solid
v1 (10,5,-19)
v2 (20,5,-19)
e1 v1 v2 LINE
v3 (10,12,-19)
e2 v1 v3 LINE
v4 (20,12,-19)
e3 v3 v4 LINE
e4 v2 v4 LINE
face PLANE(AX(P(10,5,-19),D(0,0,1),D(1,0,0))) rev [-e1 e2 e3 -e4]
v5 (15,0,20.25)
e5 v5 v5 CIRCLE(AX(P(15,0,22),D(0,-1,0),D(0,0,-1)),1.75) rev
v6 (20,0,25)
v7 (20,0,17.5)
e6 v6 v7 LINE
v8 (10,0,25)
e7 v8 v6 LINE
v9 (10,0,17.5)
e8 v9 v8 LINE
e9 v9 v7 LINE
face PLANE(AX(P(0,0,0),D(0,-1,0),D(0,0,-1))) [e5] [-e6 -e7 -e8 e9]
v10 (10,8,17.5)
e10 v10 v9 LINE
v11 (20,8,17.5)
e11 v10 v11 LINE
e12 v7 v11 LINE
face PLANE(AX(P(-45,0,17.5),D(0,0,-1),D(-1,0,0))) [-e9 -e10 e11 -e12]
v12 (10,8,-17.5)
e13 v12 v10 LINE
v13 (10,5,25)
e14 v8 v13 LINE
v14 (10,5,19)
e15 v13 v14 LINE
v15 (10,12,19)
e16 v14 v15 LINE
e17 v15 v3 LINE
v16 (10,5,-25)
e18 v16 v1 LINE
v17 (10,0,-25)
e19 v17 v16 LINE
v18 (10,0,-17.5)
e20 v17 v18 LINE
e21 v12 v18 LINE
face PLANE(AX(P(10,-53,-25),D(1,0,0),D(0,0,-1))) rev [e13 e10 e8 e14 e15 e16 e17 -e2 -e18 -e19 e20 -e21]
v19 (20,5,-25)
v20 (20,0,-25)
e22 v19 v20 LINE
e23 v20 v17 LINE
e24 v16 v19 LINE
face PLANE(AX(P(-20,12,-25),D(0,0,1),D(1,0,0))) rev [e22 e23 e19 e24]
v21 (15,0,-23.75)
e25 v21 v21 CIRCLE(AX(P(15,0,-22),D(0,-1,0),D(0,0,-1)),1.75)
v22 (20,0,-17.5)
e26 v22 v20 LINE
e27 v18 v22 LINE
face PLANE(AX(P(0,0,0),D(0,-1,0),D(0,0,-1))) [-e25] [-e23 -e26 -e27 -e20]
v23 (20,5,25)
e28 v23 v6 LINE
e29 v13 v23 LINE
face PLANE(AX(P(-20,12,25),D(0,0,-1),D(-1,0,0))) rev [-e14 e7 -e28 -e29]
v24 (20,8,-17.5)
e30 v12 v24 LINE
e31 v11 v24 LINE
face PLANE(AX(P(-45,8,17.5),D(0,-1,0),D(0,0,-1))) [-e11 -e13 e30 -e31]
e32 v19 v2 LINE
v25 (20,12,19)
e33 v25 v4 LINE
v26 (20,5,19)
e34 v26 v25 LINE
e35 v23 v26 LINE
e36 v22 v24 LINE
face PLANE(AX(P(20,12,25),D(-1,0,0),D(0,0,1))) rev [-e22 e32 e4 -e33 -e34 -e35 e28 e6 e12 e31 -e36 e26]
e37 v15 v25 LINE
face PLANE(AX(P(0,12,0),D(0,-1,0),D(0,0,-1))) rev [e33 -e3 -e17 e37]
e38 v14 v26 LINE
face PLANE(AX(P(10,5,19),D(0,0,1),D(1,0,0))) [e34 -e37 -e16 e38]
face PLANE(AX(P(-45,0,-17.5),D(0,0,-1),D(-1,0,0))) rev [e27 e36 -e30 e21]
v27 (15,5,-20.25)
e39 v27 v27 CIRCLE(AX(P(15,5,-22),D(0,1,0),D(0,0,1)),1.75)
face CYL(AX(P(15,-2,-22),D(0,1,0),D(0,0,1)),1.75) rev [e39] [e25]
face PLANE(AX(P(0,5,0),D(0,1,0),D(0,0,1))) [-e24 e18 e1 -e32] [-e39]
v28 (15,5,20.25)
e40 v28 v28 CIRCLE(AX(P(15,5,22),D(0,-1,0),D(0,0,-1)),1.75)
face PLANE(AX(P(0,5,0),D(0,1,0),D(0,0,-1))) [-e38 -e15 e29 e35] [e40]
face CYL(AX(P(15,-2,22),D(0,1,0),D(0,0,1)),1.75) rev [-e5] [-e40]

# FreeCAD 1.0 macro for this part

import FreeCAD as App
import Part
import Sketcher

V = App.Vector
Q = App.Units.Quantity

doc = App.newDocument("Part")
body = doc.addObject("PartDesign::Body", "Body")

# Sketch on XZ plane
sketch1 = doc.addObject("Sketcher::SketchObject", "Sketch")
body.addObject(sketch1)
sketch1.AttachmentSupport = (doc.XZ_Plane, [""])
sketch1.MapMode = "FlatFace"
sketch1.addGeometry([
    Part.LineSegment(V(-20, -25, 0), V(-20, 25, 0)),
    Part.LineSegment(V(-20, 25, 0), V(20, 25, 0)),
    Part.LineSegment(V(20, 25, 0), V(20, -25, 0)),
    Part.LineSegment(V(20, -25, 0), V(-20, -25, 0)),
], False)
sketch1.addConstraint([
    Sketcher.Constraint("Coincident", 0, 2, 1, 1),
    Sketcher.Constraint("Coincident", 1, 2, 2, 1),
    Sketcher.Constraint("Coincident", 2, 2, 3, 1),
    Sketcher.Constraint("Coincident", 3, 2, 0, 1),
    Sketcher.Constraint("Vertical", 0),
    Sketcher.Constraint("Horizontal", 1),
    Sketcher.Constraint("Vertical", 2),
    Sketcher.Constraint("Horizontal", 3),
    Sketcher.Constraint("Symmetric", 0, 2, 2, 2, -1, 1),
    Sketcher.Constraint("DistanceX", 1, 1, 1, 2, Q("40 mm")),
    Sketcher.Constraint("DistanceY", 0, 1, 0, 2, Q("50 mm")),
])
pad1 = doc.addObject("PartDesign::Pad", "Pad")
body.addObject(pad1)
pad1.Profile = sketch1
pad1.Length = 12
pad1.Reversed = True

# Sketch on YZ plane
sketch2 = doc.addObject("Sketcher::SketchObject", "Sketch001")
body.addObject(sketch2)
sketch2.AttachmentSupport = (doc.YZ_Plane, [""])
sketch2.MapMode = "FlatFace"
sketch2.AttachmentOffset = App.Placement(V(0, 0, 20), App.Rotation())
sketch2.addGeometry([
    Part.LineSegment(V(8, 18, 0), V(0, 18, 0)),
    Part.LineSegment(V(0, 18, 0), V(0, -18, 0)),
    Part.LineSegment(V(0, -18, 0), V(8, -18, 0)),
    Part.LineSegment(V(8, -18, 0), V(8, 18, 0)),
], False)
sketch2.addConstraint([
    Sketcher.Constraint("Coincident", 0, 2, 1, 1),
    Sketcher.Constraint("Coincident", 1, 2, 2, 1),
    Sketcher.Constraint("Coincident", 2, 2, 3, 1),
    Sketcher.Constraint("Coincident", 3, 2, 0, 1),
    Sketcher.Constraint("Horizontal", 0),
    Sketcher.Constraint("Vertical", 1),
    Sketcher.Constraint("Horizontal", 2),
    Sketcher.Constraint("Vertical", 3),
    Sketcher.Constraint("Symmetric", 0, 2, 1, 2, -1, 1),
    Sketcher.Constraint("DistanceX", 0, 2, 0, 1, Q("8 mm")),
    Sketcher.Constraint("DistanceY", 1, 2, 1, 1, Q("35 mm")),
])
pocket1 = doc.addObject("PartDesign::Pocket", "Pocket")
body.addObject(pocket1)
pocket1.Profile = sketch2
pocket1.Length = 65

# Sketch on XZ plane
sketch3 = doc.addObject("Sketcher::SketchObject", "Sketch002")
body.addObject(sketch3)
sketch3.AttachmentSupport = (doc.XZ_Plane, [""])
sketch3.MapMode = "FlatFace"
sketch3.AttachmentOffset = App.Placement(V(0, 0, -12), App.Rotation())
sketch3.addGeometry([
    Part.LineSegment(V(-20, -25, 0), V(-20, 25, 0)),
    Part.LineSegment(V(-20, 25, 0), V(10, 25, 0)),
    Part.LineSegment(V(10, 25, 0), V(10, -25, 0)),
    Part.LineSegment(V(10, -25, 0), V(-20, -25, 0)),
], False)
sketch3.addConstraint([
    Sketcher.Constraint("Coincident", 0, 2, 1, 1),
    Sketcher.Constraint("Coincident", 1, 2, 2, 1),
    Sketcher.Constraint("Coincident", 2, 2, 3, 1),
    Sketcher.Constraint("Coincident", 3, 2, 0, 1),
    Sketcher.Constraint("Vertical", 0),
    Sketcher.Constraint("Horizontal", 1),
    Sketcher.Constraint("Vertical", 2),
    Sketcher.Constraint("Horizontal", 3),
    Sketcher.Constraint("DistanceX", 1, 1, 1, 2, Q("30 mm")),
    Sketcher.Constraint("DistanceY", 0, 1, 0, 2, Q("50 mm")),
    Sketcher.Constraint("DistanceX", 0, 2, -1, 1, Q("20 mm")),
    Sketcher.Constraint("DistanceY", -1, 1, 0, 2, Q("25 mm")),
])
pocket2 = doc.addObject("PartDesign::Pocket", "Pocket001")
body.addObject(pocket2)
pocket2.Profile = sketch3
pocket2.Length = 65
pocket2.Reversed = True

# Sketch on XZ plane
sketch4 = doc.addObject("Sketcher::SketchObject", "Sketch003")
body.addObject(sketch4)
sketch4.AttachmentSupport = (doc.XZ_Plane, [""])
sketch4.MapMode = "FlatFace"
sketch4.AttachmentOffset = App.Placement(V(0, 0, -12), App.Rotation())
sketch4.addGeometry([
    Part.LineSegment(V(10, -25, 0), V(10, -19, 0)),
    Part.LineSegment(V(10, -19, 0), V(20, -19, 0)),
    Part.LineSegment(V(20, -19, 0), V(20, -25, 0)),
    Part.LineSegment(V(20, -25, 0), V(10, -25, 0)),
], False)
sketch4.addConstraint([
    Sketcher.Constraint("Coincident", 0, 2, 1, 1),
    Sketcher.Constraint("Coincident", 1, 2, 2, 1),
    Sketcher.Constraint("Coincident", 2, 2, 3, 1),
    Sketcher.Constraint("Coincident", 3, 2, 0, 1),
    Sketcher.Constraint("Vertical", 0),
    Sketcher.Constraint("Horizontal", 1),
    Sketcher.Constraint("Vertical", 2),
    Sketcher.Constraint("Horizontal", 3),
    Sketcher.Constraint("DistanceX", 1, 1, 1, 2, Q("10 mm")),
    Sketcher.Constraint("DistanceY", 0, 1, 0, 2, Q("6 mm")),
    Sketcher.Constraint("DistanceX", -1, 1, 0, 2, Q("10 mm")),
    Sketcher.Constraint("DistanceY", 0, 2, -1, 1, Q("19 mm")),
])
pocket3 = doc.addObject("PartDesign::Pocket", "Pocket002")
body.addObject(pocket3)
pocket3.Profile = sketch4
pocket3.Length = 7
pocket3.Reversed = True
doc.recompute()

mirrored = doc.addObject("PartDesign::Mirrored", "Mirrored")
body.addObject(mirrored)
mirrored.Originals = [pocket3]
mirrored.MirrorPlane = (doc.XY_Plane, [""])
body.Tip = mirrored

# Sketch on XZ plane
sketch5 = doc.addObject("Sketcher::SketchObject", "Sketch004")
body.addObject(sketch5)
sketch5.AttachmentSupport = (doc.XZ_Plane, [""])
sketch5.MapMode = "FlatFace"
sketch5.AttachmentOffset = App.Placement(V(0, 0, -5), App.Rotation())
sketch5.addGeometry(Part.Circle(V(15, -22, 0), V(0, 0, 1), 1.8), False)
sketch5.addConstraint([
    Sketcher.Constraint("Diameter", 0, Q("3.5 mm")),
    Sketcher.Constraint("DistanceX", -1, 1, 0, 3, Q("15 mm")),
    Sketcher.Constraint("DistanceY", 0, 3, -1, 1, Q("22 mm")),
])
pocket4 = doc.addObject("PartDesign::Pocket", "Pocket003")
body.addObject(pocket4)
pocket4.Profile = sketch5
pocket4.Length = 7
pocket4.Reversed = True
doc.recompute()

mirrored2 = doc.addObject("PartDesign::Mirrored", "Mirrored001")
body.addObject(mirrored2)
mirrored2.Originals = [pocket4]
mirrored2.MirrorPlane = (doc.XY_Plane, [""])
body.Tip = mirrored2

doc.recompute()
